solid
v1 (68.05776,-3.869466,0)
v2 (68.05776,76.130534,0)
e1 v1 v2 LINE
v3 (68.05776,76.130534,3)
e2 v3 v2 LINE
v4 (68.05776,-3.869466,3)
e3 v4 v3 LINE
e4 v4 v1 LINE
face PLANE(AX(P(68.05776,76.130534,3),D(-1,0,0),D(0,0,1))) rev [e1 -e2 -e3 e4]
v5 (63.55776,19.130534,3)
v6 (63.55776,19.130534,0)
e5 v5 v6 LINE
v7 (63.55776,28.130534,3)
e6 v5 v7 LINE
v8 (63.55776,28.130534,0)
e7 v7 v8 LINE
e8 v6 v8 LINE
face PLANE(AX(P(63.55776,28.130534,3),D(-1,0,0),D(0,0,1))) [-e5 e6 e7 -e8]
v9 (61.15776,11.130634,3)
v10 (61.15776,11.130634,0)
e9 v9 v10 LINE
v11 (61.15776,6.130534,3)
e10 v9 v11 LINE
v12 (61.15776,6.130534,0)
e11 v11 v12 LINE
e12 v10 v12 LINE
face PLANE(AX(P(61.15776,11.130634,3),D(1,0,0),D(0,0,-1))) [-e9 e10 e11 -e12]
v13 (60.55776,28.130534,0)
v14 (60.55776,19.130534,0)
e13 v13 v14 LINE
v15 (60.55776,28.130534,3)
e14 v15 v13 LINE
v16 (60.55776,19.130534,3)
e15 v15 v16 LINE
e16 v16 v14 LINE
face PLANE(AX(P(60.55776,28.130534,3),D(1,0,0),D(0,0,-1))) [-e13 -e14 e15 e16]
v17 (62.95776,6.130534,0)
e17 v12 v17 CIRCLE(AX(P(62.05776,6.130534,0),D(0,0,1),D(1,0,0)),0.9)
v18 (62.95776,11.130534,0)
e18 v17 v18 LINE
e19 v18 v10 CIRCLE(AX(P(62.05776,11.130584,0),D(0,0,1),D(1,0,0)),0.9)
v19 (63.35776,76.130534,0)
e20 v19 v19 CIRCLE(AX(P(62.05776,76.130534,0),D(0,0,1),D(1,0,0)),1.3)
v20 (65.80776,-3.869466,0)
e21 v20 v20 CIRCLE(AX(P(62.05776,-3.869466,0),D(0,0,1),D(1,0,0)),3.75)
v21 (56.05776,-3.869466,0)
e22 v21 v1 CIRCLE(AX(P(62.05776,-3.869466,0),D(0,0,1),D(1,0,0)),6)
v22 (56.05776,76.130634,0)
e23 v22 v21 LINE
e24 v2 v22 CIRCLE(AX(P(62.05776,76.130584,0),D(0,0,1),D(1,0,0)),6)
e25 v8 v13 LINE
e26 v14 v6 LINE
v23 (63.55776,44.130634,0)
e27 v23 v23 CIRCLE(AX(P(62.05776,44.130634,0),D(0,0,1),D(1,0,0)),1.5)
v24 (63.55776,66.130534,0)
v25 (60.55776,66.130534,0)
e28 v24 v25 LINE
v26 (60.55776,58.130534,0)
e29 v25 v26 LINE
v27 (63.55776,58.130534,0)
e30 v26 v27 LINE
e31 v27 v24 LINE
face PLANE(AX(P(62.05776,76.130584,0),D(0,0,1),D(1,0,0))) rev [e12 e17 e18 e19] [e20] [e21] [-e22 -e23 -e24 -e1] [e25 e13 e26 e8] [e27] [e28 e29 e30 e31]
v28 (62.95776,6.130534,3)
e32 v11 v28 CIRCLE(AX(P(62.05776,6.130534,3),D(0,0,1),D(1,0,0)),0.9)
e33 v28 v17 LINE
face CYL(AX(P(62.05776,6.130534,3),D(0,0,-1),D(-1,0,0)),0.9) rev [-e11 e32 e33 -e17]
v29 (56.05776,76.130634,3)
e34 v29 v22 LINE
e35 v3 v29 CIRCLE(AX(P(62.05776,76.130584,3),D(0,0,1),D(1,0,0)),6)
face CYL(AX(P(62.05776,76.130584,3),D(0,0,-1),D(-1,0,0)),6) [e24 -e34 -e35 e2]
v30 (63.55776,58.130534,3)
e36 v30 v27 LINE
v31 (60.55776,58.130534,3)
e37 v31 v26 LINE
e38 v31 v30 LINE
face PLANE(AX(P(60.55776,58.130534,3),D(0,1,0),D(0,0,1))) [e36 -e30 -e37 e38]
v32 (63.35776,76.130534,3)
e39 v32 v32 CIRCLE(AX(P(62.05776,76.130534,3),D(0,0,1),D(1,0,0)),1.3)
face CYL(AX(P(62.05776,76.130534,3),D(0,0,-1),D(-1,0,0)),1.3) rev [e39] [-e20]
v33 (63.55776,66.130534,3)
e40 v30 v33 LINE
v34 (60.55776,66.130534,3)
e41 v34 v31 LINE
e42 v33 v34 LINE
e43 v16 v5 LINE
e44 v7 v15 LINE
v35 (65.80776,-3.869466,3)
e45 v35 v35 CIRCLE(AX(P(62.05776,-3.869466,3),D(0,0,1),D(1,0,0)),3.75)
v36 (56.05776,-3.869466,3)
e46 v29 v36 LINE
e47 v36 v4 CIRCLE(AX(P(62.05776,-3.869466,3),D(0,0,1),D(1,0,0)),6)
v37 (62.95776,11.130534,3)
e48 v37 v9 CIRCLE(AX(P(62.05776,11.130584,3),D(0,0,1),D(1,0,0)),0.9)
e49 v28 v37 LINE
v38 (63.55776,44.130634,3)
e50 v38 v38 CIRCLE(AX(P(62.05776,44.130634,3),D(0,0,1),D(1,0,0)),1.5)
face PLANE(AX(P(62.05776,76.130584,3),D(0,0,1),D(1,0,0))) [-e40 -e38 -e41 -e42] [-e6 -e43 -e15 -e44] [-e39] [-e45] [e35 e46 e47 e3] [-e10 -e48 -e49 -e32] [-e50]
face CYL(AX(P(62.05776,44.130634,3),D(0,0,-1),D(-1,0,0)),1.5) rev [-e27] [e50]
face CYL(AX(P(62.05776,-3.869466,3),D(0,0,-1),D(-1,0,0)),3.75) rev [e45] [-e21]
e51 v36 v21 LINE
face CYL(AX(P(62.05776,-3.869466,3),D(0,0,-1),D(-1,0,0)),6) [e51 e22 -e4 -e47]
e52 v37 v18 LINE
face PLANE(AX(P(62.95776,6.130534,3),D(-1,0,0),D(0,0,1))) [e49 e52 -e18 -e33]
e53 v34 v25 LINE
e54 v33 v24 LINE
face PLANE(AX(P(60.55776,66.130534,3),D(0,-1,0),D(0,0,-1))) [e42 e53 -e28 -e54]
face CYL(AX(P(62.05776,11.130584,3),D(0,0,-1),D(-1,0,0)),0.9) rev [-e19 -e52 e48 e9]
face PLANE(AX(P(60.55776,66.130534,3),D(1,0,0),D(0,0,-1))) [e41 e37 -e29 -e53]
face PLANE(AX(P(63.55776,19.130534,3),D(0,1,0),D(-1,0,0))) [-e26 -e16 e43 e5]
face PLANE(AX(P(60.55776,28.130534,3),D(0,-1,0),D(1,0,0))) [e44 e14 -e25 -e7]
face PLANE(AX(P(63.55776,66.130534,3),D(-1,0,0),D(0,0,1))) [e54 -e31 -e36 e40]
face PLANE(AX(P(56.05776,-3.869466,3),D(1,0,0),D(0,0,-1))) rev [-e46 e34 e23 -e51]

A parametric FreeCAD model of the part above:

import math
import FreeCAD as App
import Part
import Sketcher
Q = App.Units.Quantity

doc = App.newDocument("Part")
body = doc.addObject("PartDesign::Body", "Body")

# Sketch on XY plane
sketch1 = body.newObject("Sketcher::SketchObject", "Sketch")
sketch1.AttachmentSupport = (doc.getObject("XY_Plane"), [""])
sketch1.MapMode = "FlatFace"
sketch1.addGeometry([
    Part.LineSegment(App.Vector(56.05776, 76.130634, 0), App.Vector(56.05776, -3.869466, 0)),  # 0
    Part.ArcOfCircle(Part.Circle(App.Vector(62.05776, -3.869466, 0), App.Vector(0, 0, 1), 6), math.radians(180), math.radians(360)),  # 1
    Part.LineSegment(App.Vector(68.05776, -3.869466, 0), App.Vector(68.05776, 76.130534, 0)),  # 2
    Part.ArcOfCircle(Part.Circle(App.Vector(62.05776, 76.130584, 0), App.Vector(0, 0, 1), 6), math.radians(-0.000477), math.radians(179.999523)),  # 3
    Part.ArcOfCircle(Part.Circle(App.Vector(62.05776, 11.130584, 0), App.Vector(0, 0, 1), 0.9), math.radians(-0.003183), math.radians(179.996817)),  # 4
    Part.LineSegment(App.Vector(62.95776, 11.130534, 0), App.Vector(62.95776, 6.130534, 0)),  # 5
    Part.ArcOfCircle(Part.Circle(App.Vector(62.05776, 6.130534, 0), App.Vector(0, 0, 1), 0.9), math.radians(180), math.radians(360)),  # 6
    Part.LineSegment(App.Vector(61.15776, 6.130534, 0), App.Vector(61.15776, 11.130634, 0)),  # 7
    Part.LineSegment(App.Vector(60.55776, 19.130534, 0), App.Vector(60.55776, 28.130534, 0)),  # 8
    Part.LineSegment(App.Vector(60.55776, 28.130534, 0), App.Vector(63.55776, 28.130534, 0)),  # 9
    Part.LineSegment(App.Vector(63.55776, 28.130534, 0), App.Vector(63.55776, 19.130534, 0)),  # 10
    Part.LineSegment(App.Vector(63.55776, 19.130534, 0), App.Vector(60.55776, 19.130534, 0)),  # 11
    Part.Circle(App.Vector(62.05776, -3.869466, 0), App.Vector(0, 0, 1), 3.75),  # 12
    Part.Circle(App.Vector(62.05776, 44.130634, 0), App.Vector(0, 0, 1), 1.5),  # 13
    Part.LineSegment(App.Vector(60.55776, 58.130534, 0), App.Vector(60.55776, 66.130534, 0)),  # 14
    Part.LineSegment(App.Vector(60.55776, 66.130534, 0), App.Vector(63.55776, 66.130534, 0)),  # 15
    Part.LineSegment(App.Vector(63.55776, 66.130534, 0), App.Vector(63.55776, 58.130534, 0)),  # 16
    Part.LineSegment(App.Vector(63.55776, 58.130534, 0), App.Vector(60.55776, 58.130534, 0)),  # 17
    Part.Circle(App.Vector(62.05776, 76.130534, 0), App.Vector(0, 0, 1), 1.3),  # 18
], False)
sketch1.addConstraint([
    Sketcher.Constraint("Tangent", 0, 2, 1, 1),
    Sketcher.Constraint("Tangent", 1, 2, 2, 1),
    Sketcher.Constraint("Coincident", 2, 2, 3, 1),
    Sketcher.Constraint("Coincident", 3, 2, 0, 1),
    Sketcher.Constraint("Coincident", 4, 1, 5, 1),
    Sketcher.Constraint("Tangent", 5, 2, 6, 2),
    Sketcher.Constraint("Tangent", 6, 1, 7, 1),
    Sketcher.Constraint("Coincident", 7, 2, 4, 2),
    Sketcher.Constraint("Coincident", 8, 2, 9, 1),
    Sketcher.Constraint("Coincident", 9, 2, 10, 1),
    Sketcher.Constraint("Coincident", 10, 2, 11, 1),
    Sketcher.Constraint("Coincident", 11, 2, 8, 1),
    Sketcher.Constraint("Coincident", 14, 2, 15, 1),
    Sketcher.Constraint("Coincident", 15, 2, 16, 1),
    Sketcher.Constraint("Coincident", 16, 2, 17, 1),
    Sketcher.Constraint("Coincident", 17, 2, 14, 1),
    Sketcher.Constraint("Vertical", 0),
    Sketcher.Constraint("Vertical", 2),
    Sketcher.Constraint("Vertical", 5),
    Sketcher.Constraint("Vertical", 7),
    Sketcher.Constraint("Vertical", 8),
    Sketcher.Constraint("Horizontal", 9),
    Sketcher.Constraint("Vertical", 10),
    Sketcher.Constraint("Horizontal", 11),
    Sketcher.Constraint("Vertical", 14),
    Sketcher.Constraint("Horizontal", 15),
    Sketcher.Constraint("Vertical", 16),
    Sketcher.Constraint("Horizontal", 17),
    Sketcher.Constraint("Coincident", 12, 3, 1, 3),
    Sketcher.Constraint("Horizontal", 18, 3, 2, 2),
    Sketcher.Constraint("Vertical", 3, 3, 4, 3),
    Sketcher.Constraint("Vertical", 12, 3, 13, 3),
    Sketcher.Constraint("Vertical", 13, 3, 18, 3),
    Sketcher.Constraint("Vertical", 11, 2, 14, 2),
    Sketcher.Constraint("Vertical", 10, 2, 15, 2),
    Sketcher.Constraint("Diameter", 13, Q("3 mm")),
    Sketcher.Constraint("Radius", 1, Q("6 mm")),
    Sketcher.Constraint("Diameter", 12, Q("7.5 mm")),
    Sketcher.Constraint("Diameter", 18, Q("2.6 mm")),
    Sketcher.Constraint("Radius", 4, Q("0.9 mm")),
    Sketcher.Constraint("DistanceX", 9, 1, 9, 2, Q("3 mm")),
    Sketcher.Constraint("DistanceY", 2, 1, 2, 2, Q("80 mm")),
    Sketcher.Constraint("DistanceY", 5, 2, 5, 1, Q("5 mm")),
    Sketcher.Constraint("DistanceY", 8, 1, 8, 2, Q("9 mm")),
    Sketcher.Constraint("DistanceY", 14, 1, 14, 2, Q("8 mm")),
    Sketcher.Constraint("DistanceY", 4, 3, 3, 3, Q("65 mm")),
    Sketcher.Constraint("DistanceY", 1, 3, 6, 3, Q("10 mm")),
    Sketcher.Constraint("DistanceY", 13, 3, 3, 2, Q("32 mm")),
    Sketcher.Constraint("DistanceY", 4, 1, 8, 2, Q("17 mm")),
    Sketcher.Constraint("DistanceY", 14, 2, 18, 3, Q("10 mm")),
    Sketcher.Constraint("DistanceX", 8, 2, 13, 3, Q("1.5 mm")),
    Sketcher.Constraint("DistanceY", 0, 2, 0, 1, Q("80.0001 mm")),
    Sketcher.Constraint("DistanceY", 7, 1, 7, 2, Q("5.0001 mm")),
    Sketcher.Constraint("DistanceX", -1, 1, 1, 3, Q("62.05776 mm")),
    Sketcher.Constraint("DistanceY", 1, 3, 3, 3, Q("80.00005 mm")),
    Sketcher.Constraint("DistanceY", 1, 3, -1, 1, Q("3.869466 mm")),
])
pad1 = body.newObject("PartDesign::Pad", "Pad")
pad1.Profile = sketch1
pad1.Length = 3

doc.recompute()
